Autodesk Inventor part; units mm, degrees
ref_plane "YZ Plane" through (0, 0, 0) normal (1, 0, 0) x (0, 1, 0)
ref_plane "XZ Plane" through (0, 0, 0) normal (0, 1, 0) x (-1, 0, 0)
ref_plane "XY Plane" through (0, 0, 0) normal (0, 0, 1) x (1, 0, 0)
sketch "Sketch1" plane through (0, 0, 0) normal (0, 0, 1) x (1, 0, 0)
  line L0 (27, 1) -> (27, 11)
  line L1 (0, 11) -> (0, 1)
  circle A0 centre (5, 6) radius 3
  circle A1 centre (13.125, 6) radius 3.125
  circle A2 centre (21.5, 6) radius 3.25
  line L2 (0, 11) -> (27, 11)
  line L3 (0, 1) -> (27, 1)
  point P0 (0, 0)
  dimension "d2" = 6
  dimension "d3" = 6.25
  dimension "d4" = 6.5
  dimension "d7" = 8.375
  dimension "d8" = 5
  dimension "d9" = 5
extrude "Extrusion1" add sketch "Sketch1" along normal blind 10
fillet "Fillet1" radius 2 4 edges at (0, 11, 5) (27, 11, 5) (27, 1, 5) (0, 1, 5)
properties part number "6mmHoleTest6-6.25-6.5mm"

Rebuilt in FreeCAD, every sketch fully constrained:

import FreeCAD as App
import Part
import Sketcher
from FreeCAD import Vector


def edges_at(feature, points):
    """Names of the edges that pass closest to the given points."""
    edges = feature.Shape.Edges
    near = lambda p: min(range(len(edges)), key=lambda i: edges[i].distToShape(Part.Vertex(*p))[0])
    return sorted({f"Edge{near(p) + 1}" for p in points})

doc = App.newDocument("Part")
body = doc.addObject("PartDesign::Body", "Body")

# Sketch on XY plane
sketch1 = body.newObject("Sketcher::SketchObject", "Sketch")
sketch1.AttachmentSupport = (doc.getObject("XY_Plane"), [""])
sketch1.MapMode = "FlatFace"
sketch1.addGeometry([
    Part.LineSegment(Vector(0, 1, 0), Vector(27, 1, 0)),  # 0
    Part.LineSegment(Vector(27, 1, 0), Vector(27, 11, 0)),  # 1
    Part.LineSegment(Vector(27, 11, 0), Vector(0, 11, 0)),  # 2
    Part.LineSegment(Vector(0, 11, 0), Vector(0, 1, 0)),  # 3
    Part.Circle(Vector(5, 6, 0), Vector(0, 0, 1), 3),  # 4
    Part.Circle(Vector(13.125, 6, 0), Vector(0, 0, 1), 3.125),  # 5
    Part.Circle(Vector(21.5, 6, 0), Vector(0, 0, 1), 3.25),  # 6
], False)
sketch1.addConstraint([
    Sketcher.Constraint("Coincident", 0, 2, 1, 1),
    Sketcher.Constraint("Coincident", 1, 2, 2, 1),
    Sketcher.Constraint("Coincident", 2, 2, 3, 1),
    Sketcher.Constraint("Coincident", 3, 2, 0, 1),
    Sketcher.Constraint("Horizontal", 0),
    Sketcher.Constraint("Vertical", 1),
    Sketcher.Constraint("Horizontal", 2),
    Sketcher.Constraint("Vertical", 3),
    Sketcher.Constraint("PointOnObject", 2, 2, -2),
    Sketcher.Constraint("Horizontal", 4, 3, 5, 3),
    Sketcher.Constraint("Horizontal", 5, 3, 6, 3),
    Sketcher.Constraint("Diameter", 4, 6.0),
    Sketcher.Constraint("Diameter", 6, 6.5),
    Sketcher.Constraint("Diameter", 5, 6.25),
    Sketcher.Constraint("DistanceX", -1, 1, 4, 3, 5.0),
    Sketcher.Constraint("DistanceY", -1, 1, 4, 3, 6.0),
    Sketcher.Constraint("DistanceY", 0, 2, 6, 3, 5.0),
    Sketcher.Constraint("DistanceY", 6, 3, 1, 2, 5.0),
    Sketcher.Constraint("DistanceX", 0, 1, 0, 2, 27.0),
    Sketcher.Constraint("DistanceX", 5, 3, 6, 3, 8.375),
    Sketcher.Constraint("DistanceX", -1, 1, 6, 3, 21.5),
])
pad1 = body.newObject("PartDesign::Pad", "Pad")
pad1.Profile = sketch1
pad1.Length = 10
doc.recompute()

fillet = body.newObject("PartDesign::Fillet", "Fillet")
fillet.Base = (pad1, edges_at(pad1, [
    (0, 11, 5),
    (27, 11, 5),
    (27, 1, 5),
    (0, 1, 5),
]))
fillet.Radius = 2

doc.recompute()
